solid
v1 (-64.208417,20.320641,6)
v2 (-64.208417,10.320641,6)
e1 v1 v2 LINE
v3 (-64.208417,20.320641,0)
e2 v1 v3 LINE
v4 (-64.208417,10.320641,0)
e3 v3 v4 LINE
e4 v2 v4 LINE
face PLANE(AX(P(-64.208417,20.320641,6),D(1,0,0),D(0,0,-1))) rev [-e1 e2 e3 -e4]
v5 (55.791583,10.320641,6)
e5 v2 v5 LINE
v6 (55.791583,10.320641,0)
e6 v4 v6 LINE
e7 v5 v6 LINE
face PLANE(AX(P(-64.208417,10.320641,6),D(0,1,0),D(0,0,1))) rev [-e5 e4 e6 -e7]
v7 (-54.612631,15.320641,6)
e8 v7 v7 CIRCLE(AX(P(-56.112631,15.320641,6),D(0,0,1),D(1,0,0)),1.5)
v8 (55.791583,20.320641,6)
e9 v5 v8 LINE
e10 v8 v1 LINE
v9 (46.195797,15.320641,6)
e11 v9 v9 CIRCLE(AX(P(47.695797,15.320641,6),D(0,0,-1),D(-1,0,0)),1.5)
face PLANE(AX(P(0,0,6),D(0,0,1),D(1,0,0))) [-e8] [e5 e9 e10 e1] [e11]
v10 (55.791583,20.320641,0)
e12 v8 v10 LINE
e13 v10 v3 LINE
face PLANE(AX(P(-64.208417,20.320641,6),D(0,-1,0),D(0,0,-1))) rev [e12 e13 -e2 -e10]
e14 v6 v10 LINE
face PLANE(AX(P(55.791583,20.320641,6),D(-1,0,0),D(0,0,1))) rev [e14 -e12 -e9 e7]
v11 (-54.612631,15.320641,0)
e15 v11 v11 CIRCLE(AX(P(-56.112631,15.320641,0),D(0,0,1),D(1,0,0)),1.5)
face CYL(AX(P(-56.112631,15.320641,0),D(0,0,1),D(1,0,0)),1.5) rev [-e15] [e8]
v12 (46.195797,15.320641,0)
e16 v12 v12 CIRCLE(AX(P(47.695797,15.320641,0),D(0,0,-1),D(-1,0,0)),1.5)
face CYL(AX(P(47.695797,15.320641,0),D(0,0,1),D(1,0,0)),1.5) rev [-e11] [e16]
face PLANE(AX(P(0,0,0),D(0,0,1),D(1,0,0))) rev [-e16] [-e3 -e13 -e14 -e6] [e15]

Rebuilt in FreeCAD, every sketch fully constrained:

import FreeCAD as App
import Part
import Sketcher
Q = App.Units.Quantity

doc = App.newDocument("Part")
body = doc.addObject("PartDesign::Body", "Body")

# Sketch on XY plane
sketch1 = body.newObject("Sketcher::SketchObject", "Sketch")
sketch1.AttachmentSupport = (doc.getObject("XY_Plane"), [""])
sketch1.MapMode = "FlatFace"
sketch1.addGeometry(Part.LineSegment(App.Vector(-64, 20, 0), App.Vector(-64, 10, 0)), False)
sketch1.addGeometry(Part.LineSegment(App.Vector(-64, 10, 0), App.Vector(56, 10, 0)), False)
sketch1.addGeometry(Part.LineSegment(App.Vector(56, 10, 0), App.Vector(56, 20, 0)), False)
sketch1.addGeometry(Part.LineSegment(App.Vector(56, 20, 0), App.Vector(-64, 20, 0)), False)
sketch1.addConstraint(Sketcher.Constraint("Coincident", 0, 2, 1, 1))
sketch1.addConstraint(Sketcher.Constraint("Coincident", 1, 2, 2, 1))
sketch1.addConstraint(Sketcher.Constraint("Coincident", 2, 2, 3, 1))
sketch1.addConstraint(Sketcher.Constraint("Coincident", 3, 2, 0, 1))
sketch1.addConstraint(Sketcher.Constraint("Vertical", 0))
sketch1.addConstraint(Sketcher.Constraint("Horizontal", 1))
sketch1.addConstraint(Sketcher.Constraint("Vertical", 2))
sketch1.addConstraint(Sketcher.Constraint("Horizontal", 3))
sketch1.addConstraint(Sketcher.Constraint("DistanceX", 1, 1, 1, 2, Q("120 mm")))
sketch1.addConstraint(Sketcher.Constraint("DistanceY", 0, 2, 0, 1, Q("10 mm")))
sketch1.addConstraint(Sketcher.Constraint("DistanceY", -1, 1, 0, 2, Q("10.320641 mm")))
sketch1.addConstraint(Sketcher.Constraint("DistanceX", 0, 2, -1, 1, Q("64.208417 mm")))
pad1 = body.newObject("PartDesign::Pad", "Pad")
pad1.Profile = sketch1
pad1.Length = 6

# Sketch on XY plane
sketch2 = body.newObject("Sketcher::SketchObject", "Sketch001")
sketch2.AttachmentSupport = (doc.getObject("XY_Plane"), [""])
sketch2.MapMode = "FlatFace"
sketch2.AttachmentOffset = App.Placement(App.Vector(0, 0, 6), App.Rotation())
sketch2.addGeometry(Part.Circle(App.Vector(-56.1, 15.3, 0), App.Vector(0, 0, 1), 1.5), False)
sketch2.addGeometry(Part.Circle(App.Vector(47.7, 15.3, 0), App.Vector(0, 0, 1), 1.5), False)
sketch2.addConstraint(Sketcher.Constraint("Equal", 0, 1))
sketch2.addConstraint(Sketcher.Constraint("Horizontal", 0, 3, 1, 3))
sketch2.addConstraint(Sketcher.Constraint("Diameter", 0, Q("3 mm")))
sketch2.addConstraint(Sketcher.Constraint("DistanceX", 0, 3, -1, 1, Q("56.112631 mm")))
sketch2.addConstraint(Sketcher.Constraint("DistanceY", -1, 1, 0, 3, Q("15.320641 mm")))
sketch2.addConstraint(Sketcher.Constraint("DistanceX", -1, 1, 1, 3, Q("47.695797 mm")))
pocket1 = body.newObject("PartDesign::Pocket", "Pocket")
pocket1.Profile = sketch2
pocket1.Type = "ThroughAll"

doc.recompute()
